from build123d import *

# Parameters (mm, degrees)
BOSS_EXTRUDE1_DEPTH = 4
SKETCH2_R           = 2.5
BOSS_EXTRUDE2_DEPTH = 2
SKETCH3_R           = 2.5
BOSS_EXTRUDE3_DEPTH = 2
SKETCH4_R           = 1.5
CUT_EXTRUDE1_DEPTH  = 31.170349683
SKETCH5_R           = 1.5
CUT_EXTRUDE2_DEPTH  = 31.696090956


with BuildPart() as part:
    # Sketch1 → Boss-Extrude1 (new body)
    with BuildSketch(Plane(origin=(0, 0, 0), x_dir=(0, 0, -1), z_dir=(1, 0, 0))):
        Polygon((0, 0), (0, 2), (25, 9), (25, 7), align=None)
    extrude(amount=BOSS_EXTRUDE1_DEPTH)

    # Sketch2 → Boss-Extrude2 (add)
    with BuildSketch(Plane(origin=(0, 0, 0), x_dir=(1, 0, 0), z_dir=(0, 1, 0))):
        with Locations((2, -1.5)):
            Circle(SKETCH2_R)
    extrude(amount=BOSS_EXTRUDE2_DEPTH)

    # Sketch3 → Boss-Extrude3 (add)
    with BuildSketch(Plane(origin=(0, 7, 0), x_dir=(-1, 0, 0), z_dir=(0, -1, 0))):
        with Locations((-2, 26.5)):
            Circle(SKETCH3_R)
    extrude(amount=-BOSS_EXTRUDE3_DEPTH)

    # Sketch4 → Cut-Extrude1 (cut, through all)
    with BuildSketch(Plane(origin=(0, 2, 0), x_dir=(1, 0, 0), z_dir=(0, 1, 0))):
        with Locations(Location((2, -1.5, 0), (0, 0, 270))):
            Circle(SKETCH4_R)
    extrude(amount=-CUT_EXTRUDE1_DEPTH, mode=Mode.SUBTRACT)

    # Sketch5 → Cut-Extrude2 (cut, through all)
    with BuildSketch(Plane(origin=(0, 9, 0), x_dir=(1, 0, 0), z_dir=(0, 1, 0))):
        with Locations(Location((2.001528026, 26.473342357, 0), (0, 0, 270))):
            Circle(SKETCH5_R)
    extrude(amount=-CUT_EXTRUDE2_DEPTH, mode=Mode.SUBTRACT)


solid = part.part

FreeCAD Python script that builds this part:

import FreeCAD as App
import Part
import Sketcher
from FreeCAD import Vector
Q = App.Units.Quantity

doc = App.newDocument("Part")
body = doc.addObject("PartDesign::Body", "Body")

# Sketch on YZ plane
sketch1 = body.newObject("Sketcher::SketchObject", "Sketch")
sketch1.AttachmentSupport = (doc.getObject("YZ_Plane"), [""])
sketch1.MapMode = "FlatFace"
sketch1.addGeometry(Part.LineSegment(Vector(2, 0, 0), Vector(0, 0, 0)), False)
sketch1.addGeometry(Part.LineSegment(Vector(0, 0, 0), Vector(7, -25, 0)), False)
sketch1.addGeometry(Part.LineSegment(Vector(7, -25, 0), Vector(9, -25, 0)), False)
sketch1.addGeometry(Part.LineSegment(Vector(9, -25, 0), Vector(2, 0, 0)), False)
sketch1.addConstraint(Sketcher.Constraint("Coincident", 0, 2, 1, 1))
sketch1.addConstraint(Sketcher.Constraint("Coincident", 1, 2, 2, 1))
sketch1.addConstraint(Sketcher.Constraint("Coincident", 2, 2, 3, 1))
sketch1.addConstraint(Sketcher.Constraint("Coincident", 3, 2, 0, 1))
sketch1.addConstraint(Sketcher.Constraint("Horizontal", 0))
sketch1.addConstraint(Sketcher.Constraint("Horizontal", 2))
sketch1.addConstraint(Sketcher.Constraint("Coincident", 0, 2, -1, 1))
sketch1.addConstraint(Sketcher.Constraint("Parallel", 1, 3))
sketch1.addConstraint(Sketcher.Constraint("DistanceX", 0, 2, 0, 1, Q("2 mm")))
sketch1.addConstraint(Sketcher.Constraint("DistanceX", -1, 1, 1, 2, Q("7 mm")))
sketch1.addConstraint(Sketcher.Constraint("DistanceY", 1, 2, -1, 1, Q("25 mm")))
pad1 = body.newObject("PartDesign::Pad", "Pad")
pad1.Profile = sketch1
pad1.Length = 4

# Sketch on XZ plane
sketch2 = body.newObject("Sketcher::SketchObject", "Sketch001")
sketch2.AttachmentSupport = (doc.getObject("XZ_Plane"), [""])
sketch2.MapMode = "FlatFace"
sketch2.addGeometry(Part.Circle(Vector(2, 1.5, 0), Vector(0, 0, 1), 2.5), False)
sketch2.addConstraint(Sketcher.Constraint("Diameter", 0, Q("5 mm")))
sketch2.addConstraint(Sketcher.Constraint("DistanceX", -1, 1, 0, 3, Q("2 mm")))
sketch2.addConstraint(Sketcher.Constraint("DistanceY", -1, 1, 0, 3, Q("1.5 mm")))
pad2 = body.newObject("PartDesign::Pad", "Pad001")
pad2.Profile = sketch2
pad2.Length = 2
pad2.Reversed = True

# Sketch on XZ plane
sketch3 = body.newObject("Sketcher::SketchObject", "Sketch002")
sketch3.AttachmentSupport = (doc.getObject("XZ_Plane"), [""])
sketch3.MapMode = "FlatFace"
sketch3.AttachmentOffset = App.Placement(Vector(0, 0, -7), App.Rotation())
sketch3.addGeometry(Part.Circle(Vector(2, -26.5, 0), Vector(0, 0, 1), 2.5), False)
sketch3.addConstraint(Sketcher.Constraint("Diameter", 0, Q("5 mm")))
sketch3.addConstraint(Sketcher.Constraint("DistanceX", -1, 1, 0, 3, Q("2 mm")))
sketch3.addConstraint(Sketcher.Constraint("DistanceY", 0, 3, -1, 1, Q("26.5 mm")))
pad3 = body.newObject("PartDesign::Pad", "Pad002")
pad3.Profile = sketch3
pad3.Length = 2
pad3.Reversed = True

# Sketch on XZ plane
sketch4 = body.newObject("Sketcher::SketchObject", "Sketch003")
sketch4.AttachmentSupport = (doc.getObject("XZ_Plane"), [""])
sketch4.MapMode = "FlatFace"
sketch4.AttachmentOffset = App.Placement(Vector(0, 0, -2), App.Rotation())
sketch4.addGeometry(Part.Circle(Vector(2, 1.5, 0), Vector(0, 0, 1), 1.5), False)
sketch4.addConstraint(Sketcher.Constraint("Diameter", 0, Q("3 mm")))
sketch4.addConstraint(Sketcher.Constraint("DistanceX", -1, 1, 0, 3, Q("2 mm")))
sketch4.addConstraint(Sketcher.Constraint("DistanceY", -1, 1, 0, 3, Q("1.5 mm")))
pocket1 = body.newObject("PartDesign::Pocket", "Pocket")
pocket1.Profile = sketch4
pocket1.Type = "ThroughAll"
pocket1.Reversed = True

# Sketch on XZ plane
sketch5 = body.newObject("Sketcher::SketchObject", "Sketch004")
sketch5.AttachmentSupport = (doc.getObject("XZ_Plane"), [""])
sketch5.MapMode = "FlatFace"
sketch5.AttachmentOffset = App.Placement(Vector(0, 0, -9), App.Rotation())
sketch5.addGeometry(Part.Circle(Vector(2, -26.5, 0), Vector(0, 0, 1), 1.5), False)
sketch5.addConstraint(Sketcher.Constraint("Diameter", 0, Q("3 mm")))
sketch5.addConstraint(Sketcher.Constraint("DistanceX", -1, 1, 0, 3, Q("2.001528 mm")))
sketch5.addConstraint(Sketcher.Constraint("DistanceY", 0, 3, -1, 1, Q("26.473342 mm")))
pocket2 = body.newObject("PartDesign::Pocket", "Pocket001")
pocket2.Profile = sketch5
pocket2.Type = "ThroughAll"
pocket2.Reversed = True

doc.recompute()
